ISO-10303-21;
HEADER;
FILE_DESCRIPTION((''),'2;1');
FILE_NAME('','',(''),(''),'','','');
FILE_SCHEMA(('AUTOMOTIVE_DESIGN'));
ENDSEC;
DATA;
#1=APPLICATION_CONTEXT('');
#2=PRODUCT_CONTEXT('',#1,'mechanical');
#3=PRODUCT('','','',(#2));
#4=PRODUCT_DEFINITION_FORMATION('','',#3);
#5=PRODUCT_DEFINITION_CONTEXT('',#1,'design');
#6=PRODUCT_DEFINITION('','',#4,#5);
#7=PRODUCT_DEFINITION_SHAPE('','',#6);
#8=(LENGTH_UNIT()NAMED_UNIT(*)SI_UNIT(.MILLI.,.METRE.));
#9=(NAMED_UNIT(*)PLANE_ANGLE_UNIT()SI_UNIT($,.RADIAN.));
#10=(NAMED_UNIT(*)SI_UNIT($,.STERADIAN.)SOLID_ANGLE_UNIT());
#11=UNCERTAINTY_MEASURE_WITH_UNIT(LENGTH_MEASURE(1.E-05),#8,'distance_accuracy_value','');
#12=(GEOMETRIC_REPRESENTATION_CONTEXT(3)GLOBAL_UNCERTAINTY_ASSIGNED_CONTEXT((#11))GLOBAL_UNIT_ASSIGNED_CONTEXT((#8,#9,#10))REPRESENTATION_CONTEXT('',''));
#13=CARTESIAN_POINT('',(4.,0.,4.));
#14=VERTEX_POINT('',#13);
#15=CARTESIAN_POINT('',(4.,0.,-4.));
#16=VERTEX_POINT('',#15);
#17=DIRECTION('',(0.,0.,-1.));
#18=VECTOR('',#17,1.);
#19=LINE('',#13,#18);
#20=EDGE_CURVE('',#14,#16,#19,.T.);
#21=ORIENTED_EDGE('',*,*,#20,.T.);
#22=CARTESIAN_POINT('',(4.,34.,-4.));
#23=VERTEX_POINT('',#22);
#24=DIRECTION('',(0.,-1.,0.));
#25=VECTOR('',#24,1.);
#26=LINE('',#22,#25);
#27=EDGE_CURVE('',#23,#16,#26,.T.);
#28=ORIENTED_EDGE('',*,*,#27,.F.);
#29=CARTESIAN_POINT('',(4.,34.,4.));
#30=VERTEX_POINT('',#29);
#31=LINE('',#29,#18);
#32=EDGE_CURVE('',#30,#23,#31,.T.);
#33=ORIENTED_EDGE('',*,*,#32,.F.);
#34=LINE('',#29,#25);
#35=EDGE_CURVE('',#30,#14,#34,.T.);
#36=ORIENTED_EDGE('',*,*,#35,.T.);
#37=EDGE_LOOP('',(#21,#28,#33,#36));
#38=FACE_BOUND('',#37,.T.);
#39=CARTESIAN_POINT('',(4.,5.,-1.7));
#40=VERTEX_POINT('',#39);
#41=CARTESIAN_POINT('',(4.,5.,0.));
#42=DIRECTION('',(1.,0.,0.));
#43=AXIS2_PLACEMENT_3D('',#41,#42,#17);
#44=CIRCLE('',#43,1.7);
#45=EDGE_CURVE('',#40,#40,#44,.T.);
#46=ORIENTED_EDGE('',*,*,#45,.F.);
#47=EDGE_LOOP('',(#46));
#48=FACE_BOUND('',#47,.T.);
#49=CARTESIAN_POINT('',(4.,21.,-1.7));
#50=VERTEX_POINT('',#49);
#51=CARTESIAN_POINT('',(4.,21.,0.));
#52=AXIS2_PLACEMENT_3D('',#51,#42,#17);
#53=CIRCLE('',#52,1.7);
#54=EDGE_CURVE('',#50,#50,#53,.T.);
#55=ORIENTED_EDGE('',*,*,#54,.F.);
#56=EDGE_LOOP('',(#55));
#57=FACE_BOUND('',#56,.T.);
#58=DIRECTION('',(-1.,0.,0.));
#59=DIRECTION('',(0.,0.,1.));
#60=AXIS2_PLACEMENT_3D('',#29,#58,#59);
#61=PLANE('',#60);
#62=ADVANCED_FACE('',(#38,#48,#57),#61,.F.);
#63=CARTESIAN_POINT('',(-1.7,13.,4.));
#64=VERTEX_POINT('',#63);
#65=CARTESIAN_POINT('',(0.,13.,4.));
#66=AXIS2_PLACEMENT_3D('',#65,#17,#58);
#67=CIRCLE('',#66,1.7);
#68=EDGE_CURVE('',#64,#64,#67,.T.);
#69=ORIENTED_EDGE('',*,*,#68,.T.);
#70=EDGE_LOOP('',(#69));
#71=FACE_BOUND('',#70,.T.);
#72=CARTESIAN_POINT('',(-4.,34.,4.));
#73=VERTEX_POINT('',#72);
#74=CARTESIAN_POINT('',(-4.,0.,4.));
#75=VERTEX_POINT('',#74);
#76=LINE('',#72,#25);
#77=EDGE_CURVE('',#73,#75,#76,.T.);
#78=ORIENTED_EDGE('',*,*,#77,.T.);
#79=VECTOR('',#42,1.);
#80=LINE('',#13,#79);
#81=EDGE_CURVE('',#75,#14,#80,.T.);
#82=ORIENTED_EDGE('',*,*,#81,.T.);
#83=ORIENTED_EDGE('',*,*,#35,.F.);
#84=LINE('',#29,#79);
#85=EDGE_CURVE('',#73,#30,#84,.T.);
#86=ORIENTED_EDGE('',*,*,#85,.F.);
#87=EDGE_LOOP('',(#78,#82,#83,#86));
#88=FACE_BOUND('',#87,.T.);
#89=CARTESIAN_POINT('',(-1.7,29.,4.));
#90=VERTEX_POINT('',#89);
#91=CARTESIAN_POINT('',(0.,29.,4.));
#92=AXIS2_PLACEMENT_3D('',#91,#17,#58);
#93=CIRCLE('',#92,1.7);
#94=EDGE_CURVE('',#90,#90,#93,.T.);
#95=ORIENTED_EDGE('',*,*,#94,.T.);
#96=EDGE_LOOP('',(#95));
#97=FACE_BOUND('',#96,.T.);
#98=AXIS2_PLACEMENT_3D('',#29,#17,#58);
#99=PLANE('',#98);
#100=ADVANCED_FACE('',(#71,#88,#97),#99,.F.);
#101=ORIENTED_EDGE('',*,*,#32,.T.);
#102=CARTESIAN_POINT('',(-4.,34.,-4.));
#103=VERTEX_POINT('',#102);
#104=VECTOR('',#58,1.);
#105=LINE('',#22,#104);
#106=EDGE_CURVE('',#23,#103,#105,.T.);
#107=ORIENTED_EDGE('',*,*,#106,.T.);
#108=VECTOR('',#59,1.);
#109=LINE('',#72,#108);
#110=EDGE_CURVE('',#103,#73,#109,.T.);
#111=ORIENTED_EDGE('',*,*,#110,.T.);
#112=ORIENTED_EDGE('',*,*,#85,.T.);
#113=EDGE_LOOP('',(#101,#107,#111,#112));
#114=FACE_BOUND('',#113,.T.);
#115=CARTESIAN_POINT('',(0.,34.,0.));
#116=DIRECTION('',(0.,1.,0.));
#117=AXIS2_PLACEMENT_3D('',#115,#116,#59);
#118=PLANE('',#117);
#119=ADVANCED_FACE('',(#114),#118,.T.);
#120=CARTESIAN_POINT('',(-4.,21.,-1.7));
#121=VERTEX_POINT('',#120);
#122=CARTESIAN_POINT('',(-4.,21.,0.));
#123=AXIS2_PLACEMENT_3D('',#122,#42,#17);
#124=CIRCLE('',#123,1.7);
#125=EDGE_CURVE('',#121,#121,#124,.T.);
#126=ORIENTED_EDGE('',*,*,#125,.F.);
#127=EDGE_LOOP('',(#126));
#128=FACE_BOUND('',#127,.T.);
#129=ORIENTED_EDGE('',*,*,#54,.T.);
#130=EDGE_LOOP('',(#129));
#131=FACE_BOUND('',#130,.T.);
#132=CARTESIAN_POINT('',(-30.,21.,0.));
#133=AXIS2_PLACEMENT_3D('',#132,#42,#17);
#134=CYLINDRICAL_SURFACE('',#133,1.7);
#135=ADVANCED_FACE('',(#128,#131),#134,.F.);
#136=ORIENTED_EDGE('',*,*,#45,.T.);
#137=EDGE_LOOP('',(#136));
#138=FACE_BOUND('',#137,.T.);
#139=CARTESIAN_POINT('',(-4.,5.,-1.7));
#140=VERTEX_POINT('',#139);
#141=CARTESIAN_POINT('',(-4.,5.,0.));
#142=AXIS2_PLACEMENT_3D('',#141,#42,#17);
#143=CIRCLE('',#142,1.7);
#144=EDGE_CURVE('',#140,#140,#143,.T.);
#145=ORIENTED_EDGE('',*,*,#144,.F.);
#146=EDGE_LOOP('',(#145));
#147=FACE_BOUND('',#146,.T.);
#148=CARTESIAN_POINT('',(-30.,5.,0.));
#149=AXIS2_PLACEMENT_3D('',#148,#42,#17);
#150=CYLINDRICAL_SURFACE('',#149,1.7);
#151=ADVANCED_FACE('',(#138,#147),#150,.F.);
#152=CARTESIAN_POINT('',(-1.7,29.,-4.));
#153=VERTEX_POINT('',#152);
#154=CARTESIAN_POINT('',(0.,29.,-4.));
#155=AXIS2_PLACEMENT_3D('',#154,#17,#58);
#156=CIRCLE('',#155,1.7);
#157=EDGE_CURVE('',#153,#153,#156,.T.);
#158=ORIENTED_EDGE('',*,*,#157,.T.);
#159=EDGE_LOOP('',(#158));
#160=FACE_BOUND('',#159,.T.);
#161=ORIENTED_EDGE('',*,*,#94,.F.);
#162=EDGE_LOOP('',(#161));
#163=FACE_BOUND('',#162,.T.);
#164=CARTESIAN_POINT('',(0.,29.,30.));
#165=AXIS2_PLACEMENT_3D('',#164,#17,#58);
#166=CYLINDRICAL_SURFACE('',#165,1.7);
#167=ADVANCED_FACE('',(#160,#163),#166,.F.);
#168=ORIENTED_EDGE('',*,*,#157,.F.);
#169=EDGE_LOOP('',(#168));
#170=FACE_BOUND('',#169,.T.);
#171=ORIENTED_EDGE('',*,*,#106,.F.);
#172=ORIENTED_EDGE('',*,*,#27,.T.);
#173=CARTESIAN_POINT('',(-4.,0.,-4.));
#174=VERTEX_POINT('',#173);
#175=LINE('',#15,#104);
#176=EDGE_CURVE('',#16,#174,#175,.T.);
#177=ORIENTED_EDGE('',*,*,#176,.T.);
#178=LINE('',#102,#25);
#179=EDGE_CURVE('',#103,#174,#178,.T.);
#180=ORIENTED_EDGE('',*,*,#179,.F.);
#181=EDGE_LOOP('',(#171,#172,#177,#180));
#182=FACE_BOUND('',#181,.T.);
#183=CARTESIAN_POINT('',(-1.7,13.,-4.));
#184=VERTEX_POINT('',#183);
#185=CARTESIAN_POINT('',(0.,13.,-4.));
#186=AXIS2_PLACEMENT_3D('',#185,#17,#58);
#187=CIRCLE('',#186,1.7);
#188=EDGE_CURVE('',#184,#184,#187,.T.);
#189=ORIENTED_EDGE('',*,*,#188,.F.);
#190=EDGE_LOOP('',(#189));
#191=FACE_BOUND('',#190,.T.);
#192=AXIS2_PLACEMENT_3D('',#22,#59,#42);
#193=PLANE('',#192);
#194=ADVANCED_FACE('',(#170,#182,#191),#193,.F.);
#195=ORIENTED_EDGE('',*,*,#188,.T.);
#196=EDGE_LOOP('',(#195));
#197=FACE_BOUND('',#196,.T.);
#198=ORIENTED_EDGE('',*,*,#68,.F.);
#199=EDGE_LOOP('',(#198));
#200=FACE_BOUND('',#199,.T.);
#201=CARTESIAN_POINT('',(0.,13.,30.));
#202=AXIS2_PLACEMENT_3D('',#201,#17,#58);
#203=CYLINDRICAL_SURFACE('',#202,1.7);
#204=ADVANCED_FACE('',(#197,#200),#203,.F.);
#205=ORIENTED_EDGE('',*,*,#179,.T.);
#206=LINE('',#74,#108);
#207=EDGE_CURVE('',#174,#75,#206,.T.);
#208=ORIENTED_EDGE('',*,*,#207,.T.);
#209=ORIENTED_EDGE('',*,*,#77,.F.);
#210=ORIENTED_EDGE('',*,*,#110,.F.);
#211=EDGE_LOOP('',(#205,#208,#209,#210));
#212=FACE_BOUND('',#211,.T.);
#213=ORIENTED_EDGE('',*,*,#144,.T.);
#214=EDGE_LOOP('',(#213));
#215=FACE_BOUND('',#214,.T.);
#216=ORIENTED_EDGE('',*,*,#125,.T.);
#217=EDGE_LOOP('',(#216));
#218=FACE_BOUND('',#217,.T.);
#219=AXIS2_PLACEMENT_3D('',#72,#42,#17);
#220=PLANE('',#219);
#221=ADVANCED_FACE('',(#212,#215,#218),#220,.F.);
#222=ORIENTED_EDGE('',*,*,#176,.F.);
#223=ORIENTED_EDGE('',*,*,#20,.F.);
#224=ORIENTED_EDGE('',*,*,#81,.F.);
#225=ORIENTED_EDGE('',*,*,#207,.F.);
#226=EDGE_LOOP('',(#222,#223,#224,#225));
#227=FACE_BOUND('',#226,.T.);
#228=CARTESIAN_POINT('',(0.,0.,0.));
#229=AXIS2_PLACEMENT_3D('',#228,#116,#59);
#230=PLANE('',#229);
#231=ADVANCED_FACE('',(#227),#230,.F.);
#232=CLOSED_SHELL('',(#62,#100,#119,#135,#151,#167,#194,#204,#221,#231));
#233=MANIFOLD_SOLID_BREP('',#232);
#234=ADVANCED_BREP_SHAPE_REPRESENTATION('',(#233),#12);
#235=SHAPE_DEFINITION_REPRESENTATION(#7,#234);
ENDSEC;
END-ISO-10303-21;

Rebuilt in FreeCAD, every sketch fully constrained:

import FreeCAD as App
import Part
import Sketcher

V = App.Vector
Q = App.Units.Quantity

doc = App.newDocument("Part")
params = doc.addObject("Spreadsheet::Sheet", "Params")
for row, (alias, value) in enumerate([
    ("sketch1_width", "8 mm"),
    ("pad1_length", "34 mm"),
    ("sketch2_diameter", "3.4 mm"),
    ("pocket1_length", "34 mm"),
    ("sketch3_diameter", "3.4 mm"),
    ("pocket2_length", "34 mm"),
], start=1):
    params.set(f"A{row}", alias)
    params.set(f"B{row}", "=" + value)
    params.setAlias(f"B{row}", alias)

body = doc.addObject("PartDesign::Body", "Body")

# Sketch on XZ plane
sketch1 = body.newObject("Sketcher::SketchObject", "Sketch")
sketch1.AttachmentSupport = (doc.getObject("XZ_Plane"), [""])
sketch1.MapMode = "FlatFace"
sketch1.addGeometry([
    Part.LineSegment(V(-4, -4, 0), V(-4, 4, 0)),
    Part.LineSegment(V(-4, 4, 0), V(4, 4, 0)),
    Part.LineSegment(V(4, 4, 0), V(4, -4, 0)),
    Part.LineSegment(V(4, -4, 0), V(-4, -4, 0)),
], False)
sketch1.addConstraint([
    Sketcher.Constraint("Coincident", 0, 2, 1, 1),
    Sketcher.Constraint("Coincident", 1, 2, 2, 1),
    Sketcher.Constraint("Coincident", 2, 2, 3, 1),
    Sketcher.Constraint("Coincident", 3, 2, 0, 1),
    Sketcher.Constraint("Vertical", 0),
    Sketcher.Constraint("Horizontal", 1),
    Sketcher.Constraint("Vertical", 2),
    Sketcher.Constraint("Horizontal", 3),
    Sketcher.Constraint("Symmetric", 0, 2, 2, 2, -1, 1),
    Sketcher.Constraint("Equal", 3, 0),
    Sketcher.Constraint("DistanceX", 1, 1, 1, 2, Q("8 mm")),
])
sketch1.setExpression("Constraints[10]", "Params.sketch1_width")
pad1 = body.newObject("PartDesign::Pad", "Pad")
pad1.Profile = sketch1
pad1.setExpression("Length", "Params.pad1_length")
pad1.Reversed = True

# Sketch on XY plane
sketch2 = body.newObject("Sketcher::SketchObject", "Sketch001")
sketch2.AttachmentSupport = (doc.getObject("XY_Plane"), [""])
sketch2.MapMode = "FlatFace"
sketch2.AttachmentOffset = App.Placement(V(0, 0, -4), App.Rotation())
sketch2.addGeometry([
    Part.Circle(V(0, 29, 0), V(0, 0, 1), 1.7),
    Part.Circle(V(0, 13, 0), V(0, 0, 1), 1.7),
], False)
sketch2.addConstraint([
    Sketcher.Constraint("Equal", 0, 1),
    Sketcher.Constraint("PointOnObject", 0, 3, -2),
    Sketcher.Constraint("PointOnObject", 1, 3, -2),
    Sketcher.Constraint("Diameter", 0, Q("3.4 mm")),
    Sketcher.Constraint("DistanceY", -1, 1, 0, 3, Q("29 mm")),
    Sketcher.Constraint("DistanceY", -1, 1, 1, 3, Q("13 mm")),
])
sketch2.setExpression("Constraints[3]", "Params.sketch2_diameter")
pocket1 = body.newObject("PartDesign::Pocket", "Pocket")
pocket1.Profile = sketch2
pocket1.setExpression("Length", "Params.pocket1_length")
pocket1.Reversed = True

# Sketch on YZ plane
sketch3 = body.newObject("Sketcher::SketchObject", "Sketch002")
sketch3.AttachmentSupport = (doc.getObject("YZ_Plane"), [""])
sketch3.MapMode = "FlatFace"
sketch3.AttachmentOffset = App.Placement(V(0, 0, 4), App.Rotation())
sketch3.addGeometry([
    Part.Circle(V(5, 0, 0), V(0, 0, 1), 1.7),
    Part.Circle(V(21, 0, 0), V(0, 0, 1), 1.7),
], False)
sketch3.addConstraint([
    Sketcher.Constraint("Equal", 0, 1),
    Sketcher.Constraint("PointOnObject", 0, 3, -1),
    Sketcher.Constraint("PointOnObject", 1, 3, -1),
    Sketcher.Constraint("Diameter", 0, Q("3.4 mm")),
    Sketcher.Constraint("DistanceX", -1, 1, 0, 3, Q("5 mm")),
    Sketcher.Constraint("DistanceX", -1, 1, 1, 3, Q("21 mm")),
])
sketch3.setExpression("Constraints[3]", "Params.sketch3_diameter")
pocket2 = body.newObject("PartDesign::Pocket", "Pocket001")
pocket2.Profile = sketch3
pocket2.setExpression("Length", "Params.pocket2_length")

doc.recompute()
